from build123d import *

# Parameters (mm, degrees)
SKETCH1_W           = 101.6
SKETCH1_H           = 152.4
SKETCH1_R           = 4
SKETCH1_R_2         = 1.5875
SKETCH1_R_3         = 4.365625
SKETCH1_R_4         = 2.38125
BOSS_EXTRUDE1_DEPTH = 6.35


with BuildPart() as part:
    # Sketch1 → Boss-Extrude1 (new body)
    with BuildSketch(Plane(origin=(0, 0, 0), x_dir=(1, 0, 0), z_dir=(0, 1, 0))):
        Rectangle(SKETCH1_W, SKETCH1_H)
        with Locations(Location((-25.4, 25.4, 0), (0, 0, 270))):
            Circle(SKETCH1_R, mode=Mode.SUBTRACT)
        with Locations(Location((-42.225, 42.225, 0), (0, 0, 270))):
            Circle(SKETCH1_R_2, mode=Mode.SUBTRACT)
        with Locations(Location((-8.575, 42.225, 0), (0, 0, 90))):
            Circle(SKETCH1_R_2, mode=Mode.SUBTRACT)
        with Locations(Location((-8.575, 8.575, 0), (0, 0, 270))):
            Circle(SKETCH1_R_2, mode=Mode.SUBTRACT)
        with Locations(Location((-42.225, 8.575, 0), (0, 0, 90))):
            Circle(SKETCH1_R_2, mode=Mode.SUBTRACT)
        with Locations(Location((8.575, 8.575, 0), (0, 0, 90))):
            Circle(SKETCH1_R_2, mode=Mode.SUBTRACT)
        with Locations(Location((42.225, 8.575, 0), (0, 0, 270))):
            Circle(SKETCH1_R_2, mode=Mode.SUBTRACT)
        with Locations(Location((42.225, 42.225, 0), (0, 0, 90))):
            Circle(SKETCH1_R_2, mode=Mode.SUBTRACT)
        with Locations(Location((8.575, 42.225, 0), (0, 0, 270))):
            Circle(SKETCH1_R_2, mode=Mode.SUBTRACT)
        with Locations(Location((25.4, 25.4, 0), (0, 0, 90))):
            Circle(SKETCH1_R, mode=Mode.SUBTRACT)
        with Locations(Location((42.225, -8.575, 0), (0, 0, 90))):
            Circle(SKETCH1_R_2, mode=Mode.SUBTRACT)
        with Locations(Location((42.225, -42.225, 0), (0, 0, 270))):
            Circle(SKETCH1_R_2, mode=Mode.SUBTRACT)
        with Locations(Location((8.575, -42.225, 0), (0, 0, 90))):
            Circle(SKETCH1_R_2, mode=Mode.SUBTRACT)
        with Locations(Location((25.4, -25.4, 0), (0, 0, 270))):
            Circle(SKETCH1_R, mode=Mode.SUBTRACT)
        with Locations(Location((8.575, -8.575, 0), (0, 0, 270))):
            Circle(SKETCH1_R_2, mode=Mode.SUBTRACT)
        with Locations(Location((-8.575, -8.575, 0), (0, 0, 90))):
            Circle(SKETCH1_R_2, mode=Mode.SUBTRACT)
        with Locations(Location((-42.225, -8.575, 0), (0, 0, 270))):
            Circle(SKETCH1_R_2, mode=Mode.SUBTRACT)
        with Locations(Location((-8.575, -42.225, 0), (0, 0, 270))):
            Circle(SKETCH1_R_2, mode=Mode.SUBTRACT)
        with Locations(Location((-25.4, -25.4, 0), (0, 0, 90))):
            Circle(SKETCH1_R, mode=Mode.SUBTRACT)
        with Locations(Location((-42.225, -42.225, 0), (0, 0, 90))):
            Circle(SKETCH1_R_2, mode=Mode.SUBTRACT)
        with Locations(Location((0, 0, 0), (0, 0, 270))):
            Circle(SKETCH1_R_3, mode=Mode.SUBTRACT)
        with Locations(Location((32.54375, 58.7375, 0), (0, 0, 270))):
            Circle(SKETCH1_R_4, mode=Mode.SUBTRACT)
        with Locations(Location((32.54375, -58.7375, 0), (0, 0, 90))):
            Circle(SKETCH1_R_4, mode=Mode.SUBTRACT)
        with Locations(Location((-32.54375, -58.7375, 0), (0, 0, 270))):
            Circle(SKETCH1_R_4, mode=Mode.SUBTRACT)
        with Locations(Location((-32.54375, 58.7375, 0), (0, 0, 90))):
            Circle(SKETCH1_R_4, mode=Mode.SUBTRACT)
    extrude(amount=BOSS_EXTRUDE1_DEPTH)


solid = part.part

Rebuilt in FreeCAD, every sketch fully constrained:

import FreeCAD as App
import Part
import Sketcher

V = App.Vector
Q = App.Units.Quantity

doc = App.newDocument("Part")
params = doc.addObject("Spreadsheet::Sheet", "Params")
for row, (alias, value) in enumerate([
    ("sketch1_width", "4 in"),
    ("sketch1_height", "6 in"),
    ("sketch1_diameter", "0.1875 in"),
    ("sketch1_diameter2", "0.125 in"),
    ("sketch1_diameter3", "0.34375 in"),
    ("pad1_length", "0.25 in"),
], start=1):
    params.set(f"A{row}", alias)
    params.set(f"B{row}", "=" + value)
    params.setAlias(f"B{row}", alias)

body = doc.addObject("PartDesign::Body", "Body")

# Sketch on XZ plane
sketch1 = doc.addObject("Sketcher::SketchObject", "Sketch")
body.addObject(sketch1)
sketch1.AttachmentSupport = (doc.XZ_Plane, [""])
sketch1.MapMode = "FlatFace"
sketch1.addGeometry([
    Part.LineSegment(V(-50.8, -76.2, 0), V(-50.8, 76.2, 0)),  # 0
    Part.LineSegment(V(-50.8, 76.2, 0), V(50.8, 76.2, 0)),  # 1
    Part.LineSegment(V(50.8, 76.2, 0), V(50.8, -76.2, 0)),  # 2
    Part.LineSegment(V(50.8, -76.2, 0), V(-50.8, -76.2, 0)),  # 3
    Part.Circle(V(-32.5, 58.7, 0), V(0, 0, 1), 2.4),  # 4
    Part.Circle(V(-42.2, 42.2, 0), V(0, 0, 1), 1.6),  # 5
    Part.Circle(V(-8.6, 42.2, 0), V(0, 0, 1), 1.6),  # 6
    Part.Circle(V(-25.4, 25.4, 0), V(0, 0, 1), 4),  # 7
    Part.Circle(V(-42.2, 8.6, 0), V(0, 0, 1), 1.6),  # 8
    Part.Circle(V(-8.6, 8.6, 0), V(0, 0, 1), 1.6),  # 9
    Part.Circle(V(8.6, 42.2, 0), V(0, 0, 1), 1.6),  # 10
    Part.Circle(V(32.5, 58.7, 0), V(0, 0, 1), 2.4),  # 11
    Part.Circle(V(42.2, 42.2, 0), V(0, 0, 1), 1.6),  # 12
    Part.Circle(V(8.6, 8.6, 0), V(0, 0, 1), 1.6),  # 13
    Part.Circle(V(25.4, 25.4, 0), V(0, 0, 1), 4),  # 14
    Part.Circle(V(42.2, 8.6, 0), V(0, 0, 1), 1.6),  # 15
    Part.Circle(V(-42.2, -8.6, 0), V(0, 0, 1), 1.6),  # 16
    Part.Circle(V(-25.4, -25.4, 0), V(0, 0, 1), 4),  # 17
    Part.Circle(V(-8.6, -8.6, 0), V(0, 0, 1), 1.6),  # 18
    Part.Circle(V(-42.2, -42.2, 0), V(0, 0, 1), 1.6),  # 19
    Part.Circle(V(-32.5, -58.7, 0), V(0, 0, 1), 2.4),  # 20
    Part.Circle(V(-8.6, -42.2, 0), V(0, 0, 1), 1.6),  # 21
    Part.Circle(V(0, 0, 0), V(0, 0, 1), 4.4),  # 22
    Part.Circle(V(8.6, -8.6, 0), V(0, 0, 1), 1.6),  # 23
    Part.Circle(V(42.2, -8.6, 0), V(0, 0, 1), 1.6),  # 24
    Part.Circle(V(25.4, -25.4, 0), V(0, 0, 1), 4),  # 25
    Part.Circle(V(8.6, -42.2, 0), V(0, 0, 1), 1.6),  # 26
    Part.Circle(V(42.2, -42.2, 0), V(0, 0, 1), 1.6),  # 27
    Part.Circle(V(32.5, -58.7, 0), V(0, 0, 1), 2.4),  # 28
], False)
sketch1.addConstraint([
    Sketcher.Constraint("Coincident", 0, 2, 1, 1),
    Sketcher.Constraint("Coincident", 1, 2, 2, 1),
    Sketcher.Constraint("Coincident", 2, 2, 3, 1),
    Sketcher.Constraint("Coincident", 3, 2, 0, 1),
    Sketcher.Constraint("Vertical", 0),
    Sketcher.Constraint("Horizontal", 1),
    Sketcher.Constraint("Vertical", 2),
    Sketcher.Constraint("Horizontal", 3),
    Sketcher.Constraint("Coincident", 22, 3, -1, 1),
    Sketcher.Constraint("Equal", 5, 6),
    Sketcher.Constraint("Equal", 6, 8),
    Sketcher.Constraint("Equal", 8, 9),
    Sketcher.Constraint("Equal", 9, 10),
    Sketcher.Constraint("Equal", 4, 11),
    Sketcher.Constraint("Equal", 10, 12),
    Sketcher.Constraint("Equal", 12, 13),
    Sketcher.Constraint("Equal", 7, 14),
    Sketcher.Constraint("Equal", 13, 15),
    Sketcher.Constraint("Equal", 15, 16),
    Sketcher.Constraint("Equal", 14, 17),
    Sketcher.Constraint("Equal", 16, 18),
    Sketcher.Constraint("Equal", 18, 19),
    Sketcher.Constraint("Equal", 11, 20),
    Sketcher.Constraint("Equal", 19, 21),
    Sketcher.Constraint("Equal", 21, 23),
    Sketcher.Constraint("Equal", 23, 24),
    Sketcher.Constraint("Equal", 17, 25),
    Sketcher.Constraint("Equal", 24, 26),
    Sketcher.Constraint("Equal", 26, 27),
    Sketcher.Constraint("Equal", 20, 28),
    Sketcher.Constraint("Symmetric", 15, 3, 16, 3, -1, 1),
    Sketcher.Constraint("Symmetric", 14, 3, 17, 3, -1, 1),
    Sketcher.Constraint("Symmetric", 13, 3, 18, 3, -1, 1),
    Sketcher.Constraint("Symmetric", 12, 3, 19, 3, -1, 1),
    Sketcher.Constraint("Symmetric", 11, 3, 20, 3, -1, 1),
    Sketcher.Constraint("Symmetric", 10, 3, 21, 3, -1, 1),
    Sketcher.Constraint("Symmetric", 9, 3, 23, 3, -1, 1),
    Sketcher.Constraint("Symmetric", 8, 3, 24, 3, -1, 1),
    Sketcher.Constraint("Symmetric", 7, 3, 25, 3, -1, 1),
    Sketcher.Constraint("Symmetric", 6, 3, 26, 3, -1, 1),
    Sketcher.Constraint("Symmetric", 5, 3, 27, 3, -1, 1),
    Sketcher.Constraint("Symmetric", 4, 3, 28, 3, -1, 1),
    Sketcher.Constraint("Symmetric", 0, 2, 2, 2, -1, 1),
    Sketcher.Constraint("Symmetric", 6, 3, 10, 3, -2),
    Sketcher.Constraint("Symmetric", 4, 3, 11, 3, -2),
    Sketcher.Constraint("Symmetric", 5, 3, 12, 3, -2),
    Sketcher.Constraint("Symmetric", 9, 3, 13, 3, -2),
    Sketcher.Constraint("Symmetric", 7, 3, 14, 3, -2),
    Sketcher.Constraint("Symmetric", 8, 3, 15, 3, -2),
    Sketcher.Constraint("Horizontal", 5, 3, 6, 3),
    Sketcher.Constraint("Horizontal", 8, 3, 9, 3),
    Sketcher.Constraint("Vertical", 5, 3, 8, 3),
    Sketcher.Constraint("Vertical", 6, 3, 9, 3),
    Sketcher.Constraint("DistanceX", 1, 1, 1, 2, Q("4 in")),
    Sketcher.Constraint("DistanceY", 0, 1, 0, 2, Q("6 in")),
    Sketcher.Constraint("Diameter", 4, Q("0.1875 in")),
    Sketcher.Constraint("Diameter", 5, Q("0.125 in")),
    Sketcher.Constraint("Diameter", 22, Q("0.34375 in")),
    Sketcher.Constraint("DistanceX", 7, 3, -1, 1, Q("1 in")),
    Sketcher.Constraint("DistanceY", -1, 1, 7, 3, Q("1 in")),
    Sketcher.Constraint("DistanceX", 5, 3, 10, 3, Q("2 in")),
    Sketcher.Constraint("DistanceY", 16, 3, 5, 3, Q("2 in")),
    Sketcher.Constraint("Diameter", 7, 8.0),
    Sketcher.Constraint("DistanceX", 4, 3, -1, 1, Q("1.28125 in")),
    Sketcher.Constraint("DistanceY", -1, 1, 4, 3, Q("2.3125 in")),
    Sketcher.Constraint("DistanceX", 5, 3, -1, 1, 42.225),
    Sketcher.Constraint("DistanceY", -1, 1, 5, 3, 42.225),
])
sketch1.setExpression("Constraints[53]", "Params.sketch1_width")
sketch1.setExpression("Constraints[54]", "Params.sketch1_height")
sketch1.setExpression("Constraints[55]", "Params.sketch1_diameter")
sketch1.setExpression("Constraints[56]", "Params.sketch1_diameter2")
sketch1.setExpression("Constraints[57]", "Params.sketch1_diameter3")
pad1 = doc.addObject("PartDesign::Pad", "Pad")
body.addObject(pad1)
pad1.Profile = sketch1
pad1.setExpression("Length", "Params.pad1_length")
pad1.Reversed = True

doc.recompute()
